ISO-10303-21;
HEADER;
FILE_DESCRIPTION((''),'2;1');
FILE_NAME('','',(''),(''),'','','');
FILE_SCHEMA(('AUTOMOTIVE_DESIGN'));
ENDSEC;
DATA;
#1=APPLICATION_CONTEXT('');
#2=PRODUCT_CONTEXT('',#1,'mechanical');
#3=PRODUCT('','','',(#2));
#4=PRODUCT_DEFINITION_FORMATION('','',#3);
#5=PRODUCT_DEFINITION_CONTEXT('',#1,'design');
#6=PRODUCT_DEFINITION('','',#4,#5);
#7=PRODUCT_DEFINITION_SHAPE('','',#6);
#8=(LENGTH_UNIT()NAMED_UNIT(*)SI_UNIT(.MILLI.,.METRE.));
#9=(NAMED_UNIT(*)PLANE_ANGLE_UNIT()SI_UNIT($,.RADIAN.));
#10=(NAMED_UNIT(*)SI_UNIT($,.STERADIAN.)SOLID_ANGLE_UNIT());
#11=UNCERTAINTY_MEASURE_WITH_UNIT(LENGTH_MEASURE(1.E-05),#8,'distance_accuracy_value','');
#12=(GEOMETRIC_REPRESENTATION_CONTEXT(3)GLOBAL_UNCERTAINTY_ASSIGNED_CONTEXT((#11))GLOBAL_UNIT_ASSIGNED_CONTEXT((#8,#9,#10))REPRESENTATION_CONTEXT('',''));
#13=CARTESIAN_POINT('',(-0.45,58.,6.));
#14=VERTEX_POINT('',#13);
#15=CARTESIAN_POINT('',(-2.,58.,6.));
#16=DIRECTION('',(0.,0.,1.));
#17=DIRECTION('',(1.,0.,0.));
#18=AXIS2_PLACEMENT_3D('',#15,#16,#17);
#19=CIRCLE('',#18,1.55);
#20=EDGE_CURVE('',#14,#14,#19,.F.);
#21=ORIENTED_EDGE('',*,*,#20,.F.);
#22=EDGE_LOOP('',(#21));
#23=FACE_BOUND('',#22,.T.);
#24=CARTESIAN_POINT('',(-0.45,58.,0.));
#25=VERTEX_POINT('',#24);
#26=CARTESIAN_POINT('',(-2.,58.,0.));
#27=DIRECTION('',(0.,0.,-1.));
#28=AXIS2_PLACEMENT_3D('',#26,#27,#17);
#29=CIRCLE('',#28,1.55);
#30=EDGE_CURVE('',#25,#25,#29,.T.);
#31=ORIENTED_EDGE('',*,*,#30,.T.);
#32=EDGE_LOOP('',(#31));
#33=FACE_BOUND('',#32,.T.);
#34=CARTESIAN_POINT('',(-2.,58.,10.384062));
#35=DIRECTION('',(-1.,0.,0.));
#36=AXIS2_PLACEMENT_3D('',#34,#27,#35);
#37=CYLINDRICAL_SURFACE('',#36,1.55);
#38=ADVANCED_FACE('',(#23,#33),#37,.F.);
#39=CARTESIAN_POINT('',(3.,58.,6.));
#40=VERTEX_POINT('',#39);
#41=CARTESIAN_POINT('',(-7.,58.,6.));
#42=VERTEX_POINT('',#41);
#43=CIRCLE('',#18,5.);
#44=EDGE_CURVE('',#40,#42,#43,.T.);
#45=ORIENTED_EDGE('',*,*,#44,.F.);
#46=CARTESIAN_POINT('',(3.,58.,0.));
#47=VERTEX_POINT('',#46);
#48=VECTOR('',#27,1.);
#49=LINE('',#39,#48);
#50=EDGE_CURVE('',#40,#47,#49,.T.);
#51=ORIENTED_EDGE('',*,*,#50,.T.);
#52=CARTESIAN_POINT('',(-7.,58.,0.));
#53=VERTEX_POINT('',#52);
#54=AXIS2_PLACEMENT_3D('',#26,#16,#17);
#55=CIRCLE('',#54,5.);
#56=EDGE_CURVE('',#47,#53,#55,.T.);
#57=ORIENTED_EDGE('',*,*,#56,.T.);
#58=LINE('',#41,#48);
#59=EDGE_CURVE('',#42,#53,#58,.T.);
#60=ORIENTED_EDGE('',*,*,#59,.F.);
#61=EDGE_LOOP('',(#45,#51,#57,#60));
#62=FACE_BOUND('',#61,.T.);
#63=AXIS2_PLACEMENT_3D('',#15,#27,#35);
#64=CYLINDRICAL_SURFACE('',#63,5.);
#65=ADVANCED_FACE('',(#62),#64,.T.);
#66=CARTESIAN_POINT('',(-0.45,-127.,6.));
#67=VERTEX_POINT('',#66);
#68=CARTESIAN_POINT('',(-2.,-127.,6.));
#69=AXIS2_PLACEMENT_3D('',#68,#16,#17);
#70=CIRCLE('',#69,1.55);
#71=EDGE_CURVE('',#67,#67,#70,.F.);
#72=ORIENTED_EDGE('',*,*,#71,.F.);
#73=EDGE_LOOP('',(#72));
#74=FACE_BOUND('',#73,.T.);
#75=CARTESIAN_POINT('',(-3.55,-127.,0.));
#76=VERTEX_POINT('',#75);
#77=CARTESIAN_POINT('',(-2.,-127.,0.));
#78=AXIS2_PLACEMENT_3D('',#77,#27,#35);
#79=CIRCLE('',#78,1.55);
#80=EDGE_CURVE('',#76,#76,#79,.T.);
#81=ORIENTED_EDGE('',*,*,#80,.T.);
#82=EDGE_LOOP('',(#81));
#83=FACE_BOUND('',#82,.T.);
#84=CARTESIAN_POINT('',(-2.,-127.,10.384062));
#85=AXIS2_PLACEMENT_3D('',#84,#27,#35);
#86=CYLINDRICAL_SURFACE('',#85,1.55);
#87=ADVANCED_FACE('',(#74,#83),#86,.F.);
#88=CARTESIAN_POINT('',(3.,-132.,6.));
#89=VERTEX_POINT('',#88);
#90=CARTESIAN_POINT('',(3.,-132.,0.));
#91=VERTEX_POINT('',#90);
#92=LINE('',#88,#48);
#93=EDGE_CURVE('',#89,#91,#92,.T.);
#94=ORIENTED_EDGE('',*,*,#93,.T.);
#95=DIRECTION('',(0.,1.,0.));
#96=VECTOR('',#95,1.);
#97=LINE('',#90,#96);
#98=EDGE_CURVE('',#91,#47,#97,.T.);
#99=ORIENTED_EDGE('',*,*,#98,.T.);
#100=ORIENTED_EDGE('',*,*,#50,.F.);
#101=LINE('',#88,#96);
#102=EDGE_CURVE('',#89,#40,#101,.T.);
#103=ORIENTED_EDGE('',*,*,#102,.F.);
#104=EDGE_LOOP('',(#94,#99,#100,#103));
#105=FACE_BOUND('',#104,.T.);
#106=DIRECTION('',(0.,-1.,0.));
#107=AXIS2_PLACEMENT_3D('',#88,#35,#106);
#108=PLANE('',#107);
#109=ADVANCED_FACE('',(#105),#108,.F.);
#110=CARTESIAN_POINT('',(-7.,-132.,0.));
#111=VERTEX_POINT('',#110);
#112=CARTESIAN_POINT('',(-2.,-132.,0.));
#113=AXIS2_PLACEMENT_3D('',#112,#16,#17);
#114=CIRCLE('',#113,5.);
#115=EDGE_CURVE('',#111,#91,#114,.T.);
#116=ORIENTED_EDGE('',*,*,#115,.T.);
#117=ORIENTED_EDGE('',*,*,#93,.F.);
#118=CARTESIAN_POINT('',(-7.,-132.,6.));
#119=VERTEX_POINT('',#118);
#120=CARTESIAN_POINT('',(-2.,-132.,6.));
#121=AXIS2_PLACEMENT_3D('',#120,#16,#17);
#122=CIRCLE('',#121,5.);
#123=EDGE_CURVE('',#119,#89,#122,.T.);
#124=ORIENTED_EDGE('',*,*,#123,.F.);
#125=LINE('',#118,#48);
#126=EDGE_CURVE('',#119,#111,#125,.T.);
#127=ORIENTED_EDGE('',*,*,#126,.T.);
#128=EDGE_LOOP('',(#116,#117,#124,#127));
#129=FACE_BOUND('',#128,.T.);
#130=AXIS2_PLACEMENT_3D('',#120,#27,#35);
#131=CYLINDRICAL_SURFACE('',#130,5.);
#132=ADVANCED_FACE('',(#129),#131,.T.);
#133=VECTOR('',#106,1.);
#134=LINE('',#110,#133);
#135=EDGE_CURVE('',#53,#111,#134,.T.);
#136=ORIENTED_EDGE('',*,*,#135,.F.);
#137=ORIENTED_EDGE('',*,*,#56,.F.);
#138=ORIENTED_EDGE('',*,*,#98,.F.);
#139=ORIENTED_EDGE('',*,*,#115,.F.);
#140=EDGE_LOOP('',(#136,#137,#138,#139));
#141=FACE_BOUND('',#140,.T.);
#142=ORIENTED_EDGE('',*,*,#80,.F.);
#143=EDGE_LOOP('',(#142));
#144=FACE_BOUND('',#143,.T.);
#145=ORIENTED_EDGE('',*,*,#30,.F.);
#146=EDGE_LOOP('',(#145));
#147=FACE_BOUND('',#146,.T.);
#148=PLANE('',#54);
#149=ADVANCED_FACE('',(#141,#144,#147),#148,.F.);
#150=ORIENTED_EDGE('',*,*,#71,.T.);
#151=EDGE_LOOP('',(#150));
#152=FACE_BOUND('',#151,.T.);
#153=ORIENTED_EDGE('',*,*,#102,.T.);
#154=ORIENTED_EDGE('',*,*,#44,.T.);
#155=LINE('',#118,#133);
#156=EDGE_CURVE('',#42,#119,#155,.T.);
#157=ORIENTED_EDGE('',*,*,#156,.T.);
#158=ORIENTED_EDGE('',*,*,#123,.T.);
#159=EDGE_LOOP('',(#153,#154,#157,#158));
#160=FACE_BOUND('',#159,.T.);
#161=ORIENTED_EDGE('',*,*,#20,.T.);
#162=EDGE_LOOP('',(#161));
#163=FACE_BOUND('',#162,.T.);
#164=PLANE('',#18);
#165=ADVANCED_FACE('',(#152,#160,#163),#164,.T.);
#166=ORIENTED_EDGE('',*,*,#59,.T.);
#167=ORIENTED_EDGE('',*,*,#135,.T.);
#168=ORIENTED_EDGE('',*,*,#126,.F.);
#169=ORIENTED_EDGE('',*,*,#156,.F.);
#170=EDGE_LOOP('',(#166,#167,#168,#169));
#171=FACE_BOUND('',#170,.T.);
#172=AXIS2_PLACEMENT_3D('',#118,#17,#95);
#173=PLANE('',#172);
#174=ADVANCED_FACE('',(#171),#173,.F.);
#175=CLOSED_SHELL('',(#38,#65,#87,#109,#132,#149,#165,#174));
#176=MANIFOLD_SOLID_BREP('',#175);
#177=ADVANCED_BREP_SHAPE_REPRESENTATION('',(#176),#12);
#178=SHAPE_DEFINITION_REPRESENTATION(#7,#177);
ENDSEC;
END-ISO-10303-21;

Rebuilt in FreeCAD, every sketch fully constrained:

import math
import FreeCAD as App
import Part
import Sketcher
from FreeCAD import Vector

doc = App.newDocument("Part")
body = doc.addObject("PartDesign::Body", "Body")

# Sketch on XY plane
sketch1 = body.newObject("Sketcher::SketchObject", "Sketch")
sketch1.AttachmentSupport = (doc.getObject("XY_Plane"), [""])
sketch1.MapMode = "FlatFace"
sketch1.addGeometry([
    Part.LineSegment(Vector(-7, 58, 0), Vector(-7, -132, 0)),
    Part.ArcOfCircle(Part.Circle(Vector(-2, -132, 0), Vector(0, 0, 1), 5), math.radians(180), math.radians(360)),
    Part.LineSegment(Vector(3, -132, 0), Vector(3, 58, 0)),
    Part.ArcOfCircle(Part.Circle(Vector(-2, 58, 0), Vector(0, 0, 1), 5), math.radians(0), math.radians(180)),
], False)
sketch1.addConstraint([
    Sketcher.Constraint("Tangent", 0, 2, 1, 1),
    Sketcher.Constraint("Tangent", 1, 2, 2, 1),
    Sketcher.Constraint("Tangent", 2, 2, 3, 1),
    Sketcher.Constraint("Tangent", 3, 2, 0, 1),
    Sketcher.Constraint("Vertical", 0),
    Sketcher.Constraint("Vertical", 2),
    Sketcher.Constraint("Radius", 1, 5.0),
    Sketcher.Constraint("DistanceY", 0, 2, 0, 1, 190.0),
    Sketcher.Constraint("DistanceX", 1, 3, -1, 1, 2.0),
    Sketcher.Constraint("DistanceY", 1, 3, -1, 1, 132.0),
])
pad1 = body.newObject("PartDesign::Pad", "Pad")
pad1.Profile = sketch1
pad1.Length = 6

# Sketch on XY plane
sketch2 = body.newObject("Sketcher::SketchObject", "Sketch001")
sketch2.AttachmentSupport = (doc.getObject("XY_Plane"), [""])
sketch2.MapMode = "FlatFace"
sketch2.addGeometry([
    Part.Circle(Vector(-2, -127, 0), Vector(0, 0, 1), 1.6),
    Part.Circle(Vector(-2, 58, 0), Vector(0, 0, 1), 1.6),
], False)
sketch2.addConstraint([
    Sketcher.Constraint("Equal", 0, 1),
    Sketcher.Constraint("Vertical", 0, 3, 1, 3),
    Sketcher.Constraint("Diameter", 0, 3.1),
    Sketcher.Constraint("DistanceX", 0, 3, -1, 1, 2.0),
    Sketcher.Constraint("DistanceY", 0, 3, -1, 1, 127.0),
    Sketcher.Constraint("DistanceY", -1, 1, 1, 3, 58.0),
])
pocket1 = body.newObject("PartDesign::Pocket", "Pocket")
pocket1.Profile = sketch2
pocket1.Length = 6
pocket1.Reversed = True

doc.recompute()
